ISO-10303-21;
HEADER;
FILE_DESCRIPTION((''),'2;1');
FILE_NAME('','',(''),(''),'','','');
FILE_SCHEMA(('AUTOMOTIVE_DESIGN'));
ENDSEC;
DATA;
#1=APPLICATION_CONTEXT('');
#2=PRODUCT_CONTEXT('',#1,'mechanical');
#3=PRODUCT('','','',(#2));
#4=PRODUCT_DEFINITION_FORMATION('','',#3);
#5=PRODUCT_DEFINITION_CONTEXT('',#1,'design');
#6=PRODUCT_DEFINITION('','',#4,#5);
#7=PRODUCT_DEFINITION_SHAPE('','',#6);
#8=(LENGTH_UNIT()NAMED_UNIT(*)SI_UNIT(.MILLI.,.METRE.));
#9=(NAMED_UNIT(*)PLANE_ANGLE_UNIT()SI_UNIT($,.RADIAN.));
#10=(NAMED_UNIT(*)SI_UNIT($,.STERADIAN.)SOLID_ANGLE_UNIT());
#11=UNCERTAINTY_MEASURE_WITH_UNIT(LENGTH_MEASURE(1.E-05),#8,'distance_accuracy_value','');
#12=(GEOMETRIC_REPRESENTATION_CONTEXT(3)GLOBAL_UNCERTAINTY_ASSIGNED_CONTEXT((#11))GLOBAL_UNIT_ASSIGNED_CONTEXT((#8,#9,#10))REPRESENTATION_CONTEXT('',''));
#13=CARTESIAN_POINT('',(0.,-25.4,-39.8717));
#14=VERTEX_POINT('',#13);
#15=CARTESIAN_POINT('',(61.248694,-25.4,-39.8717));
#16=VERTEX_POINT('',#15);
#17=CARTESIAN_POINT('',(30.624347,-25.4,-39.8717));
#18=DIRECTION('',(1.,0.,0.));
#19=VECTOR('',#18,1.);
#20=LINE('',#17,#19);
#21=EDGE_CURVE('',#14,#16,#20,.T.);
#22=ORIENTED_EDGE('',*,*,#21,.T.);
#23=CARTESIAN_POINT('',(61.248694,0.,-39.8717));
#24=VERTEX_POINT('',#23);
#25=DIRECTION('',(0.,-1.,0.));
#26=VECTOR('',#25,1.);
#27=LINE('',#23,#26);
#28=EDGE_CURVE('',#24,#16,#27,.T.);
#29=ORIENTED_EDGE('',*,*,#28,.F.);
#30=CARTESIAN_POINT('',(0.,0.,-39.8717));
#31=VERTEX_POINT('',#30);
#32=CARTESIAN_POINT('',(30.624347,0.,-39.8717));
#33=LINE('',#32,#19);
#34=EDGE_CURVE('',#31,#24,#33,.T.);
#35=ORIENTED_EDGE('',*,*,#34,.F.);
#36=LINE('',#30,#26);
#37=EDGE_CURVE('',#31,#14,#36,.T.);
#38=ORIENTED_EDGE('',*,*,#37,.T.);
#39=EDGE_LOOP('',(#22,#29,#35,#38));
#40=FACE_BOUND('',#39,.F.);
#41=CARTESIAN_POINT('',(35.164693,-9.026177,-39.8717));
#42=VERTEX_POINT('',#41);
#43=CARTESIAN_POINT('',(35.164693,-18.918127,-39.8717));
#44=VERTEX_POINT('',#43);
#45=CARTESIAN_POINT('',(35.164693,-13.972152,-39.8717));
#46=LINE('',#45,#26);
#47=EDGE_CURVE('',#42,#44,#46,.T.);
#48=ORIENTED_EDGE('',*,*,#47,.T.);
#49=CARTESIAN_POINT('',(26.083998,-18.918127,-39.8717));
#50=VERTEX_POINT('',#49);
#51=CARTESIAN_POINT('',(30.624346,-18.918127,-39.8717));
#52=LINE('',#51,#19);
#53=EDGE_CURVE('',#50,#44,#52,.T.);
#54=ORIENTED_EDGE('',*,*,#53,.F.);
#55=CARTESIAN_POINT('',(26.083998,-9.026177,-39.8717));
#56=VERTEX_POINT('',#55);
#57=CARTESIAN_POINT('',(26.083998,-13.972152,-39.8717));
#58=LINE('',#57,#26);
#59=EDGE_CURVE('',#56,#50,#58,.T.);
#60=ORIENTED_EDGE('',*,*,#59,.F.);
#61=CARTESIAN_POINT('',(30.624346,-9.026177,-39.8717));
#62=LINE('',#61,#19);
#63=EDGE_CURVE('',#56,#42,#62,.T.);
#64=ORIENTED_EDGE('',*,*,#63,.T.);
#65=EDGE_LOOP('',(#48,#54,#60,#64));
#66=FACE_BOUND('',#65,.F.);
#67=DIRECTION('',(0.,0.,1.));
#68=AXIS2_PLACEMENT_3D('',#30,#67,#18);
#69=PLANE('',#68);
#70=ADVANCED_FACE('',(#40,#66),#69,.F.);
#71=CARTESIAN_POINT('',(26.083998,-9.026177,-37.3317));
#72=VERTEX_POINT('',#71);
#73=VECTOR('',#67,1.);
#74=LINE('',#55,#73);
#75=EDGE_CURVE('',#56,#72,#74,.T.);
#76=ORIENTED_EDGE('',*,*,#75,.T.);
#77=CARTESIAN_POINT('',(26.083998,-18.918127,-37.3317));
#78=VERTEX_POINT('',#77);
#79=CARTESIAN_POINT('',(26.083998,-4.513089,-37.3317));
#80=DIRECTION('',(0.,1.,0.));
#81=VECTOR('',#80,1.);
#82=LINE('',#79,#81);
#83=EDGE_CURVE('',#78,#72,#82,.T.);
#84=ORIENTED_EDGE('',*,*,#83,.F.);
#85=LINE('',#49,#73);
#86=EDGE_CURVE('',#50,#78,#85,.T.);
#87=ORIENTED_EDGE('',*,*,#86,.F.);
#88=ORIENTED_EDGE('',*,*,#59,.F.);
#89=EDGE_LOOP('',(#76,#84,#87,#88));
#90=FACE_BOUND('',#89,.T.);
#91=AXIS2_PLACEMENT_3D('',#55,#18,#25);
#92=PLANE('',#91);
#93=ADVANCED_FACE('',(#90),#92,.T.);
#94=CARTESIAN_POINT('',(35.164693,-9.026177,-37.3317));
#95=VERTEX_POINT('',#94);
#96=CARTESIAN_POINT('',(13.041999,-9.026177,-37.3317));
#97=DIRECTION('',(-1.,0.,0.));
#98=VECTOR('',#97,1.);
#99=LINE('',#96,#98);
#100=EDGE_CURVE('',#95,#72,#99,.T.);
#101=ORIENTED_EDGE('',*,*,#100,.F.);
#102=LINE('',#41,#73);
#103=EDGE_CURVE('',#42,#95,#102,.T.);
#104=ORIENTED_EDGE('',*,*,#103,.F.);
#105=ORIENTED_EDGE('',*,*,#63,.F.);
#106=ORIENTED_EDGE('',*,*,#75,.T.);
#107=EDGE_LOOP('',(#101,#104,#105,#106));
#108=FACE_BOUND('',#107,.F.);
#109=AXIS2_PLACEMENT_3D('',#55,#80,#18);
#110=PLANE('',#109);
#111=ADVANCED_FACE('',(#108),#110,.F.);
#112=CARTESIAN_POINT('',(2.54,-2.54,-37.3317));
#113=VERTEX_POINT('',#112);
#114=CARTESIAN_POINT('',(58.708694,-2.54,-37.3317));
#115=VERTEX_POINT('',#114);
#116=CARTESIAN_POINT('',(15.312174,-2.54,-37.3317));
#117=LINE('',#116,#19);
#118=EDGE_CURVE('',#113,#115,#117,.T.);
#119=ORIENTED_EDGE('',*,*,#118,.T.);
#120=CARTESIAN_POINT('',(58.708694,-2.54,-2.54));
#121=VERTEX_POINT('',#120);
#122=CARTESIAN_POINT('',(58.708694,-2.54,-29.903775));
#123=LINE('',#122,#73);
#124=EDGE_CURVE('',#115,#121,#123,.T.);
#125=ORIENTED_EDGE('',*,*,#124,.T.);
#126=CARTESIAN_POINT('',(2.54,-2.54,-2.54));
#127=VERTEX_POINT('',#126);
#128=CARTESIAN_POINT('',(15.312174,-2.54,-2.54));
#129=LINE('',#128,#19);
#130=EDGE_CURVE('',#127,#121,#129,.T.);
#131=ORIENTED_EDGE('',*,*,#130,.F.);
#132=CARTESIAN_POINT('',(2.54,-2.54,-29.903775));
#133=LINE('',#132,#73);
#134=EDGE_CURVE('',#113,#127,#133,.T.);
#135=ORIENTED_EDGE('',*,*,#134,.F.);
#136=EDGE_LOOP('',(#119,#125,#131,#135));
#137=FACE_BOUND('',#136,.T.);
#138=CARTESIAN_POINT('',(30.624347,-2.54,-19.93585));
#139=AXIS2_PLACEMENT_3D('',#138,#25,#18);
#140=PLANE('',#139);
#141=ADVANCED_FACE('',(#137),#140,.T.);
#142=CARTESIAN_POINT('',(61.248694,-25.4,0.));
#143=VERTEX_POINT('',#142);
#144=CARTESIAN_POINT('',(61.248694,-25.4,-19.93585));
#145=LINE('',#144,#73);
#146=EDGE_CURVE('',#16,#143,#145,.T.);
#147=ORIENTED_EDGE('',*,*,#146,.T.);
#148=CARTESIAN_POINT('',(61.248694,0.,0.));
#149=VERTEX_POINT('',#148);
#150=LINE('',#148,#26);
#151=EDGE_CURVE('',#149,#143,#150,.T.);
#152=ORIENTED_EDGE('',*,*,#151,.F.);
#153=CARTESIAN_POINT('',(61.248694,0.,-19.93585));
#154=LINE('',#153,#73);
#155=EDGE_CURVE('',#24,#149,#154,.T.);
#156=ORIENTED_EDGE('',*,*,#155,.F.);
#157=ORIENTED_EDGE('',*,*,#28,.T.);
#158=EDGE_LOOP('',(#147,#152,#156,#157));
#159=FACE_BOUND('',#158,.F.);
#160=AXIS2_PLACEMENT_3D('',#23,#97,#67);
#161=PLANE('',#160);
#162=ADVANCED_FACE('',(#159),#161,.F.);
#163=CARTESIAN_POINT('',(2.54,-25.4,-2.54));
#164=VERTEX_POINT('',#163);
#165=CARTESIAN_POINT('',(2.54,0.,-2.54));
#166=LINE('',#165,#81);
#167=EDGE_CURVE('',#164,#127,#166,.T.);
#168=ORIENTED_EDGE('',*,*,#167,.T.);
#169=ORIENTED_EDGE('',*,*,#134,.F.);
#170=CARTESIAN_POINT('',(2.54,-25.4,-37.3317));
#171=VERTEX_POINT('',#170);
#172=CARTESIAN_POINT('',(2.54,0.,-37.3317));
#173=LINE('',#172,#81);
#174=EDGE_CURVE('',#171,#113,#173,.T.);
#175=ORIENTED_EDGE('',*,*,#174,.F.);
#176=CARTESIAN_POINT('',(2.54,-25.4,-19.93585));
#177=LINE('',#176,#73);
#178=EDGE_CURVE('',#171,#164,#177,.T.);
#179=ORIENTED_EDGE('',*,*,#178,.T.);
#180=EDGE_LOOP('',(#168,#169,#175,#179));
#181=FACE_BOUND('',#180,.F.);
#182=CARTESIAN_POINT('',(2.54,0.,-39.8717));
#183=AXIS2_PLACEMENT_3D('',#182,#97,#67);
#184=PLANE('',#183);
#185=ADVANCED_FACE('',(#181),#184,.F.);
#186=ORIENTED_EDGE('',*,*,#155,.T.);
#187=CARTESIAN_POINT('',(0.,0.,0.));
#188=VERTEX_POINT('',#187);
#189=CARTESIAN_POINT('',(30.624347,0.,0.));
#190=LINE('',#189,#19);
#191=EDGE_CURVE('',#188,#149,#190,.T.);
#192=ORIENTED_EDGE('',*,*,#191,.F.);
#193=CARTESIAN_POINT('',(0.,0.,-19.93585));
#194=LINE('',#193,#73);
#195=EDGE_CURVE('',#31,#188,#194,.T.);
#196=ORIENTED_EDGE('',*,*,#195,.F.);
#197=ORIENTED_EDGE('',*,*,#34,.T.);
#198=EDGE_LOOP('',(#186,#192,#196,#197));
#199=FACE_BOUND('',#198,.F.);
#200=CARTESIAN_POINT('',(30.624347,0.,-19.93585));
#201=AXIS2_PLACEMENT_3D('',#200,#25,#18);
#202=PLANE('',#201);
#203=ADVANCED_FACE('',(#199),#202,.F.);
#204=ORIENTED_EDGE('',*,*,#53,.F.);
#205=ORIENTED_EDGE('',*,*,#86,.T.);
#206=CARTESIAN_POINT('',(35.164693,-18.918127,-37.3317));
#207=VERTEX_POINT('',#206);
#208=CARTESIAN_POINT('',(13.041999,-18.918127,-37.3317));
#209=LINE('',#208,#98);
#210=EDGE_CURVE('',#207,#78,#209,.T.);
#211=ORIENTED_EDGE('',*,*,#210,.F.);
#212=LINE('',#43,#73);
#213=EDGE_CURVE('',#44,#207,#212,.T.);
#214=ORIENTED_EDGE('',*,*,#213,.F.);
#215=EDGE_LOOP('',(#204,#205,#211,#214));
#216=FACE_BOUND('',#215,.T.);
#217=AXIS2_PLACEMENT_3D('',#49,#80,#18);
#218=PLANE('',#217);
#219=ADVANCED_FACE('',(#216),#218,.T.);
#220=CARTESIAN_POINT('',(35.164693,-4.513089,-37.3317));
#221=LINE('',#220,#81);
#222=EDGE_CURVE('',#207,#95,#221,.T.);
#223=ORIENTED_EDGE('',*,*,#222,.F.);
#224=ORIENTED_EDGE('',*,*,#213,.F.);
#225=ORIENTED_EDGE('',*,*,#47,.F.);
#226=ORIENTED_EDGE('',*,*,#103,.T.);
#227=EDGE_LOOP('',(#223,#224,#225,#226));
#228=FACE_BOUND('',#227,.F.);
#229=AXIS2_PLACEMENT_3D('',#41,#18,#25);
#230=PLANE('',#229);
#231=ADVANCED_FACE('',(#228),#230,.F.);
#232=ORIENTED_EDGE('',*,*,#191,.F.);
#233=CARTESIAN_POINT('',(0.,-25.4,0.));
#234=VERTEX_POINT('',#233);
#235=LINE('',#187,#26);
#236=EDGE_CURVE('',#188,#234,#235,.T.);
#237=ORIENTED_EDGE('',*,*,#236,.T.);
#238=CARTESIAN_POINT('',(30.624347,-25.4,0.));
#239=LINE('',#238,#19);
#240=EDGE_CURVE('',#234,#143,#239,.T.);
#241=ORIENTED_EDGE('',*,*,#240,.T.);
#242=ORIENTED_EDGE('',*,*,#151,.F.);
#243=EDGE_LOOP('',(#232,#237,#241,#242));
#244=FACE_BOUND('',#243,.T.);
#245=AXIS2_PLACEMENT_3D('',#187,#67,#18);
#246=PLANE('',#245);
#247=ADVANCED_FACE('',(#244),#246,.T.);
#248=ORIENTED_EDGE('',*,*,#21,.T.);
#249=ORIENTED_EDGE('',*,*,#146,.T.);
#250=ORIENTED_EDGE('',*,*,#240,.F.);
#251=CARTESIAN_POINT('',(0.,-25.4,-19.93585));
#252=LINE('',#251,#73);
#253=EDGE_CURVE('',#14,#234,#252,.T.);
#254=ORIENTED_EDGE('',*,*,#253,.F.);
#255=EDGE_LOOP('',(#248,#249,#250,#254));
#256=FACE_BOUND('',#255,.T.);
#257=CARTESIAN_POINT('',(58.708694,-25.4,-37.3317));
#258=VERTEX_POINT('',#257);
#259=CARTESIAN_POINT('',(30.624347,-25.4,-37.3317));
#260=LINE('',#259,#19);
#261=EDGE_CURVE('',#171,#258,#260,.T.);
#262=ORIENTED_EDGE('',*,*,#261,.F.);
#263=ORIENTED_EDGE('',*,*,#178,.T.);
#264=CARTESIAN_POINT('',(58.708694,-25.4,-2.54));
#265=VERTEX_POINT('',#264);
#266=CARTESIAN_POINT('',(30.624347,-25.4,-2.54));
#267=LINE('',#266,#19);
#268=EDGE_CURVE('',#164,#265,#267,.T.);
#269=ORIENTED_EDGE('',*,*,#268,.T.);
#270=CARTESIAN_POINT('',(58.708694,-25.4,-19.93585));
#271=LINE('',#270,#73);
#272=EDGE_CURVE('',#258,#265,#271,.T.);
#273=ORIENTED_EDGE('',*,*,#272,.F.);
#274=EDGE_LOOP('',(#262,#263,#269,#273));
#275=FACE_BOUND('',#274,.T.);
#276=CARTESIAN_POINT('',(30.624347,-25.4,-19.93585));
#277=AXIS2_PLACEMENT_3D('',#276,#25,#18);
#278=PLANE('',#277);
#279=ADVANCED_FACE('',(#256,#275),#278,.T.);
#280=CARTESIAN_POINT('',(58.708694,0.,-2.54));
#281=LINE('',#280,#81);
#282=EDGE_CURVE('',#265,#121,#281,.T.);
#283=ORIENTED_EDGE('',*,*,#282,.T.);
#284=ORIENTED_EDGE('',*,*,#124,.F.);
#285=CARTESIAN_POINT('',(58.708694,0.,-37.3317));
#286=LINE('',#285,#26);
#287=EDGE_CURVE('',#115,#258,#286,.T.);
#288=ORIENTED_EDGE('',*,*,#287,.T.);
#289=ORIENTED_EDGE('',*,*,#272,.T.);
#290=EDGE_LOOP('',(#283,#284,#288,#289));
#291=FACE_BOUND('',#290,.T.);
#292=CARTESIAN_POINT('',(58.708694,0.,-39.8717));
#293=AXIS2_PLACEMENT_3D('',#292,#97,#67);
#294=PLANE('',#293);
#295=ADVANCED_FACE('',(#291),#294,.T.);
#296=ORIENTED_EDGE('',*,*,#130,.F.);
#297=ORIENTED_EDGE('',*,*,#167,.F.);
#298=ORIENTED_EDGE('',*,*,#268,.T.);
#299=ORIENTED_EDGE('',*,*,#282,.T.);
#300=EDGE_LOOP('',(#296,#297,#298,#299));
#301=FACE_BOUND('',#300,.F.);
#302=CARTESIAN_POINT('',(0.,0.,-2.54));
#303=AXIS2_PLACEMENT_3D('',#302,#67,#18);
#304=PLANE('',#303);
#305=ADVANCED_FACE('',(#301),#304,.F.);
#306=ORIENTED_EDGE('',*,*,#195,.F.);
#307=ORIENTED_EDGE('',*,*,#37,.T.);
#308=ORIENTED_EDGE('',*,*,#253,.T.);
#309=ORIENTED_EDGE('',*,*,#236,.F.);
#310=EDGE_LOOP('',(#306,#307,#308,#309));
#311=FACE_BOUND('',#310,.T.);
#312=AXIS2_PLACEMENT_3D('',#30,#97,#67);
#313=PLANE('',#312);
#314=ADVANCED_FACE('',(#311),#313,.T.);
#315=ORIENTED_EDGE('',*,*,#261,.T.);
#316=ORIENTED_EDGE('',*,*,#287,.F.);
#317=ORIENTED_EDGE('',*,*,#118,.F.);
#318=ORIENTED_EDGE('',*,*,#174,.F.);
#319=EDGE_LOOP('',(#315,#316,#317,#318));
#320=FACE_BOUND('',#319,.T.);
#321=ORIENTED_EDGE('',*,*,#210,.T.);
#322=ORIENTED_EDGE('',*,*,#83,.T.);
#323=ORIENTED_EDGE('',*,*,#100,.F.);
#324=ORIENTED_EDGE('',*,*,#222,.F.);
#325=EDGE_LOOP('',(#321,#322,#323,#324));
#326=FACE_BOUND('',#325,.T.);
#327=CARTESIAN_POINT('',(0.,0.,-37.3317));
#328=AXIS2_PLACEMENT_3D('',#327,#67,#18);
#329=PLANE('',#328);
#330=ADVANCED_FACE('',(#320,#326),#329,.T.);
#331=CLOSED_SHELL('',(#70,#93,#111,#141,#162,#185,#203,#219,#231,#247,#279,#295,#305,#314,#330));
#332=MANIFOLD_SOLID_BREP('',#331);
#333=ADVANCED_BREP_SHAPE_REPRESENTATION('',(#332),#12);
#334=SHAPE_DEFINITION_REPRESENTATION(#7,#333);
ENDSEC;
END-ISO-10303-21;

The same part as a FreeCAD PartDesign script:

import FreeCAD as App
import Part
import Sketcher


def faces_at(feature, points):
    """Names of the faces that lie closest to the given points."""
    faces = feature.Shape.Faces
    near = lambda p: min(range(len(faces)), key=lambda i: faces[i].distToShape(Part.Vertex(*p))[0])
    return sorted({f"Face{near(p) + 1}" for p in points})

doc = App.newDocument("Part")
params = doc.addObject("Spreadsheet::Sheet", "Params")
for row, (alias, value) in enumerate([
    ("pad1_length", "1 in"),
    ("thickness_wall", "0.1 in"),
    ("pocket1_length", "1 in"),
], start=1):
    params.set(f"A{row}", alias)
    params.set(f"B{row}", "=" + value)
    params.setAlias(f"B{row}", alias)

body = doc.addObject("PartDesign::Body", "Body")

# Sketch on XZ plane
sketch1 = body.newObject("Sketcher::SketchObject", "Sketch")
sketch1.AttachmentSupport = (doc.getObject("XZ_Plane"), [""])
sketch1.MapMode = "FlatFace"
sketch1.addGeometry([
    Part.LineSegment(App.Vector(0, 0, 0), App.Vector(0, -40, 0)),
    Part.LineSegment(App.Vector(0, -40, 0), App.Vector(61, -40, 0)),
    Part.LineSegment(App.Vector(61, -40, 0), App.Vector(61, 0, 0)),
    Part.LineSegment(App.Vector(61, 0, 0), App.Vector(0, 0, 0)),
], False)
sketch1.addConstraint([
    Sketcher.Constraint("Coincident", 0, 2, 1, 1),
    Sketcher.Constraint("Coincident", 1, 2, 2, 1),
    Sketcher.Constraint("Coincident", 2, 2, 3, 1),
    Sketcher.Constraint("Coincident", 3, 2, 0, 1),
    Sketcher.Constraint("Vertical", 0),
    Sketcher.Constraint("Horizontal", 1),
    Sketcher.Constraint("Vertical", 2),
    Sketcher.Constraint("Horizontal", 3),
    Sketcher.Constraint("Coincident", 3, 2, -1, 1),
    Sketcher.Constraint("DistanceY", 0, 2, 0, 1, 39.8717),
    Sketcher.Constraint("DistanceX", 1, 1, 1, 2, 61.248694),
])
pad1 = body.newObject("PartDesign::Pad", "Pad")
pad1.Profile = sketch1
pad1.setExpression("Length", "Params.pad1_length")
doc.recompute()

thickness = body.newObject("PartDesign::Thickness", "Thickness")
thickness.Base = (pad1, faces_at(pad1, [(30.624, -25.4, -19.936)]))
thickness.setExpression("Value", "Params.thickness_wall")
thickness.Reversed = True
thickness.Join = "Arc"

# Sketch on XY plane
sketch2 = body.newObject("Sketcher::SketchObject", "Sketch001")
sketch2.AttachmentSupport = (doc.getObject("XY_Plane"), [""])
sketch2.MapMode = "FlatFace"
sketch2.AttachmentOffset = App.Placement(App.Vector(0, 0, -39.8717), App.Rotation())
sketch2.addGeometry([
    Part.LineSegment(App.Vector(26, -19, 0), App.Vector(26, -9, 0)),
    Part.LineSegment(App.Vector(26, -9, 0), App.Vector(35, -9, 0)),
    Part.LineSegment(App.Vector(35, -9, 0), App.Vector(35, -19, 0)),
    Part.LineSegment(App.Vector(35, -19, 0), App.Vector(26, -19, 0)),
], False)
sketch2.addConstraint([
    Sketcher.Constraint("Coincident", 0, 2, 1, 1),
    Sketcher.Constraint("Coincident", 1, 2, 2, 1),
    Sketcher.Constraint("Coincident", 2, 2, 3, 1),
    Sketcher.Constraint("Coincident", 3, 2, 0, 1),
    Sketcher.Constraint("Vertical", 0),
    Sketcher.Constraint("Horizontal", 1),
    Sketcher.Constraint("Vertical", 2),
    Sketcher.Constraint("Horizontal", 3),
    Sketcher.Constraint("DistanceY", 0, 1, 0, 2, 9.89195),
    Sketcher.Constraint("DistanceX", -1, 1, 0, 2, 26.083998),
    Sketcher.Constraint("DistanceX", 1, 1, 1, 2, 9.080695),
    Sketcher.Constraint("DistanceY", 0, 2, -1, 1, 9.026177),
])
pocket1 = body.newObject("PartDesign::Pocket", "Pocket")
pocket1.Profile = sketch2
pocket1.setExpression("Length", "Params.pocket1_length")
pocket1.Reversed = True

doc.recompute()
